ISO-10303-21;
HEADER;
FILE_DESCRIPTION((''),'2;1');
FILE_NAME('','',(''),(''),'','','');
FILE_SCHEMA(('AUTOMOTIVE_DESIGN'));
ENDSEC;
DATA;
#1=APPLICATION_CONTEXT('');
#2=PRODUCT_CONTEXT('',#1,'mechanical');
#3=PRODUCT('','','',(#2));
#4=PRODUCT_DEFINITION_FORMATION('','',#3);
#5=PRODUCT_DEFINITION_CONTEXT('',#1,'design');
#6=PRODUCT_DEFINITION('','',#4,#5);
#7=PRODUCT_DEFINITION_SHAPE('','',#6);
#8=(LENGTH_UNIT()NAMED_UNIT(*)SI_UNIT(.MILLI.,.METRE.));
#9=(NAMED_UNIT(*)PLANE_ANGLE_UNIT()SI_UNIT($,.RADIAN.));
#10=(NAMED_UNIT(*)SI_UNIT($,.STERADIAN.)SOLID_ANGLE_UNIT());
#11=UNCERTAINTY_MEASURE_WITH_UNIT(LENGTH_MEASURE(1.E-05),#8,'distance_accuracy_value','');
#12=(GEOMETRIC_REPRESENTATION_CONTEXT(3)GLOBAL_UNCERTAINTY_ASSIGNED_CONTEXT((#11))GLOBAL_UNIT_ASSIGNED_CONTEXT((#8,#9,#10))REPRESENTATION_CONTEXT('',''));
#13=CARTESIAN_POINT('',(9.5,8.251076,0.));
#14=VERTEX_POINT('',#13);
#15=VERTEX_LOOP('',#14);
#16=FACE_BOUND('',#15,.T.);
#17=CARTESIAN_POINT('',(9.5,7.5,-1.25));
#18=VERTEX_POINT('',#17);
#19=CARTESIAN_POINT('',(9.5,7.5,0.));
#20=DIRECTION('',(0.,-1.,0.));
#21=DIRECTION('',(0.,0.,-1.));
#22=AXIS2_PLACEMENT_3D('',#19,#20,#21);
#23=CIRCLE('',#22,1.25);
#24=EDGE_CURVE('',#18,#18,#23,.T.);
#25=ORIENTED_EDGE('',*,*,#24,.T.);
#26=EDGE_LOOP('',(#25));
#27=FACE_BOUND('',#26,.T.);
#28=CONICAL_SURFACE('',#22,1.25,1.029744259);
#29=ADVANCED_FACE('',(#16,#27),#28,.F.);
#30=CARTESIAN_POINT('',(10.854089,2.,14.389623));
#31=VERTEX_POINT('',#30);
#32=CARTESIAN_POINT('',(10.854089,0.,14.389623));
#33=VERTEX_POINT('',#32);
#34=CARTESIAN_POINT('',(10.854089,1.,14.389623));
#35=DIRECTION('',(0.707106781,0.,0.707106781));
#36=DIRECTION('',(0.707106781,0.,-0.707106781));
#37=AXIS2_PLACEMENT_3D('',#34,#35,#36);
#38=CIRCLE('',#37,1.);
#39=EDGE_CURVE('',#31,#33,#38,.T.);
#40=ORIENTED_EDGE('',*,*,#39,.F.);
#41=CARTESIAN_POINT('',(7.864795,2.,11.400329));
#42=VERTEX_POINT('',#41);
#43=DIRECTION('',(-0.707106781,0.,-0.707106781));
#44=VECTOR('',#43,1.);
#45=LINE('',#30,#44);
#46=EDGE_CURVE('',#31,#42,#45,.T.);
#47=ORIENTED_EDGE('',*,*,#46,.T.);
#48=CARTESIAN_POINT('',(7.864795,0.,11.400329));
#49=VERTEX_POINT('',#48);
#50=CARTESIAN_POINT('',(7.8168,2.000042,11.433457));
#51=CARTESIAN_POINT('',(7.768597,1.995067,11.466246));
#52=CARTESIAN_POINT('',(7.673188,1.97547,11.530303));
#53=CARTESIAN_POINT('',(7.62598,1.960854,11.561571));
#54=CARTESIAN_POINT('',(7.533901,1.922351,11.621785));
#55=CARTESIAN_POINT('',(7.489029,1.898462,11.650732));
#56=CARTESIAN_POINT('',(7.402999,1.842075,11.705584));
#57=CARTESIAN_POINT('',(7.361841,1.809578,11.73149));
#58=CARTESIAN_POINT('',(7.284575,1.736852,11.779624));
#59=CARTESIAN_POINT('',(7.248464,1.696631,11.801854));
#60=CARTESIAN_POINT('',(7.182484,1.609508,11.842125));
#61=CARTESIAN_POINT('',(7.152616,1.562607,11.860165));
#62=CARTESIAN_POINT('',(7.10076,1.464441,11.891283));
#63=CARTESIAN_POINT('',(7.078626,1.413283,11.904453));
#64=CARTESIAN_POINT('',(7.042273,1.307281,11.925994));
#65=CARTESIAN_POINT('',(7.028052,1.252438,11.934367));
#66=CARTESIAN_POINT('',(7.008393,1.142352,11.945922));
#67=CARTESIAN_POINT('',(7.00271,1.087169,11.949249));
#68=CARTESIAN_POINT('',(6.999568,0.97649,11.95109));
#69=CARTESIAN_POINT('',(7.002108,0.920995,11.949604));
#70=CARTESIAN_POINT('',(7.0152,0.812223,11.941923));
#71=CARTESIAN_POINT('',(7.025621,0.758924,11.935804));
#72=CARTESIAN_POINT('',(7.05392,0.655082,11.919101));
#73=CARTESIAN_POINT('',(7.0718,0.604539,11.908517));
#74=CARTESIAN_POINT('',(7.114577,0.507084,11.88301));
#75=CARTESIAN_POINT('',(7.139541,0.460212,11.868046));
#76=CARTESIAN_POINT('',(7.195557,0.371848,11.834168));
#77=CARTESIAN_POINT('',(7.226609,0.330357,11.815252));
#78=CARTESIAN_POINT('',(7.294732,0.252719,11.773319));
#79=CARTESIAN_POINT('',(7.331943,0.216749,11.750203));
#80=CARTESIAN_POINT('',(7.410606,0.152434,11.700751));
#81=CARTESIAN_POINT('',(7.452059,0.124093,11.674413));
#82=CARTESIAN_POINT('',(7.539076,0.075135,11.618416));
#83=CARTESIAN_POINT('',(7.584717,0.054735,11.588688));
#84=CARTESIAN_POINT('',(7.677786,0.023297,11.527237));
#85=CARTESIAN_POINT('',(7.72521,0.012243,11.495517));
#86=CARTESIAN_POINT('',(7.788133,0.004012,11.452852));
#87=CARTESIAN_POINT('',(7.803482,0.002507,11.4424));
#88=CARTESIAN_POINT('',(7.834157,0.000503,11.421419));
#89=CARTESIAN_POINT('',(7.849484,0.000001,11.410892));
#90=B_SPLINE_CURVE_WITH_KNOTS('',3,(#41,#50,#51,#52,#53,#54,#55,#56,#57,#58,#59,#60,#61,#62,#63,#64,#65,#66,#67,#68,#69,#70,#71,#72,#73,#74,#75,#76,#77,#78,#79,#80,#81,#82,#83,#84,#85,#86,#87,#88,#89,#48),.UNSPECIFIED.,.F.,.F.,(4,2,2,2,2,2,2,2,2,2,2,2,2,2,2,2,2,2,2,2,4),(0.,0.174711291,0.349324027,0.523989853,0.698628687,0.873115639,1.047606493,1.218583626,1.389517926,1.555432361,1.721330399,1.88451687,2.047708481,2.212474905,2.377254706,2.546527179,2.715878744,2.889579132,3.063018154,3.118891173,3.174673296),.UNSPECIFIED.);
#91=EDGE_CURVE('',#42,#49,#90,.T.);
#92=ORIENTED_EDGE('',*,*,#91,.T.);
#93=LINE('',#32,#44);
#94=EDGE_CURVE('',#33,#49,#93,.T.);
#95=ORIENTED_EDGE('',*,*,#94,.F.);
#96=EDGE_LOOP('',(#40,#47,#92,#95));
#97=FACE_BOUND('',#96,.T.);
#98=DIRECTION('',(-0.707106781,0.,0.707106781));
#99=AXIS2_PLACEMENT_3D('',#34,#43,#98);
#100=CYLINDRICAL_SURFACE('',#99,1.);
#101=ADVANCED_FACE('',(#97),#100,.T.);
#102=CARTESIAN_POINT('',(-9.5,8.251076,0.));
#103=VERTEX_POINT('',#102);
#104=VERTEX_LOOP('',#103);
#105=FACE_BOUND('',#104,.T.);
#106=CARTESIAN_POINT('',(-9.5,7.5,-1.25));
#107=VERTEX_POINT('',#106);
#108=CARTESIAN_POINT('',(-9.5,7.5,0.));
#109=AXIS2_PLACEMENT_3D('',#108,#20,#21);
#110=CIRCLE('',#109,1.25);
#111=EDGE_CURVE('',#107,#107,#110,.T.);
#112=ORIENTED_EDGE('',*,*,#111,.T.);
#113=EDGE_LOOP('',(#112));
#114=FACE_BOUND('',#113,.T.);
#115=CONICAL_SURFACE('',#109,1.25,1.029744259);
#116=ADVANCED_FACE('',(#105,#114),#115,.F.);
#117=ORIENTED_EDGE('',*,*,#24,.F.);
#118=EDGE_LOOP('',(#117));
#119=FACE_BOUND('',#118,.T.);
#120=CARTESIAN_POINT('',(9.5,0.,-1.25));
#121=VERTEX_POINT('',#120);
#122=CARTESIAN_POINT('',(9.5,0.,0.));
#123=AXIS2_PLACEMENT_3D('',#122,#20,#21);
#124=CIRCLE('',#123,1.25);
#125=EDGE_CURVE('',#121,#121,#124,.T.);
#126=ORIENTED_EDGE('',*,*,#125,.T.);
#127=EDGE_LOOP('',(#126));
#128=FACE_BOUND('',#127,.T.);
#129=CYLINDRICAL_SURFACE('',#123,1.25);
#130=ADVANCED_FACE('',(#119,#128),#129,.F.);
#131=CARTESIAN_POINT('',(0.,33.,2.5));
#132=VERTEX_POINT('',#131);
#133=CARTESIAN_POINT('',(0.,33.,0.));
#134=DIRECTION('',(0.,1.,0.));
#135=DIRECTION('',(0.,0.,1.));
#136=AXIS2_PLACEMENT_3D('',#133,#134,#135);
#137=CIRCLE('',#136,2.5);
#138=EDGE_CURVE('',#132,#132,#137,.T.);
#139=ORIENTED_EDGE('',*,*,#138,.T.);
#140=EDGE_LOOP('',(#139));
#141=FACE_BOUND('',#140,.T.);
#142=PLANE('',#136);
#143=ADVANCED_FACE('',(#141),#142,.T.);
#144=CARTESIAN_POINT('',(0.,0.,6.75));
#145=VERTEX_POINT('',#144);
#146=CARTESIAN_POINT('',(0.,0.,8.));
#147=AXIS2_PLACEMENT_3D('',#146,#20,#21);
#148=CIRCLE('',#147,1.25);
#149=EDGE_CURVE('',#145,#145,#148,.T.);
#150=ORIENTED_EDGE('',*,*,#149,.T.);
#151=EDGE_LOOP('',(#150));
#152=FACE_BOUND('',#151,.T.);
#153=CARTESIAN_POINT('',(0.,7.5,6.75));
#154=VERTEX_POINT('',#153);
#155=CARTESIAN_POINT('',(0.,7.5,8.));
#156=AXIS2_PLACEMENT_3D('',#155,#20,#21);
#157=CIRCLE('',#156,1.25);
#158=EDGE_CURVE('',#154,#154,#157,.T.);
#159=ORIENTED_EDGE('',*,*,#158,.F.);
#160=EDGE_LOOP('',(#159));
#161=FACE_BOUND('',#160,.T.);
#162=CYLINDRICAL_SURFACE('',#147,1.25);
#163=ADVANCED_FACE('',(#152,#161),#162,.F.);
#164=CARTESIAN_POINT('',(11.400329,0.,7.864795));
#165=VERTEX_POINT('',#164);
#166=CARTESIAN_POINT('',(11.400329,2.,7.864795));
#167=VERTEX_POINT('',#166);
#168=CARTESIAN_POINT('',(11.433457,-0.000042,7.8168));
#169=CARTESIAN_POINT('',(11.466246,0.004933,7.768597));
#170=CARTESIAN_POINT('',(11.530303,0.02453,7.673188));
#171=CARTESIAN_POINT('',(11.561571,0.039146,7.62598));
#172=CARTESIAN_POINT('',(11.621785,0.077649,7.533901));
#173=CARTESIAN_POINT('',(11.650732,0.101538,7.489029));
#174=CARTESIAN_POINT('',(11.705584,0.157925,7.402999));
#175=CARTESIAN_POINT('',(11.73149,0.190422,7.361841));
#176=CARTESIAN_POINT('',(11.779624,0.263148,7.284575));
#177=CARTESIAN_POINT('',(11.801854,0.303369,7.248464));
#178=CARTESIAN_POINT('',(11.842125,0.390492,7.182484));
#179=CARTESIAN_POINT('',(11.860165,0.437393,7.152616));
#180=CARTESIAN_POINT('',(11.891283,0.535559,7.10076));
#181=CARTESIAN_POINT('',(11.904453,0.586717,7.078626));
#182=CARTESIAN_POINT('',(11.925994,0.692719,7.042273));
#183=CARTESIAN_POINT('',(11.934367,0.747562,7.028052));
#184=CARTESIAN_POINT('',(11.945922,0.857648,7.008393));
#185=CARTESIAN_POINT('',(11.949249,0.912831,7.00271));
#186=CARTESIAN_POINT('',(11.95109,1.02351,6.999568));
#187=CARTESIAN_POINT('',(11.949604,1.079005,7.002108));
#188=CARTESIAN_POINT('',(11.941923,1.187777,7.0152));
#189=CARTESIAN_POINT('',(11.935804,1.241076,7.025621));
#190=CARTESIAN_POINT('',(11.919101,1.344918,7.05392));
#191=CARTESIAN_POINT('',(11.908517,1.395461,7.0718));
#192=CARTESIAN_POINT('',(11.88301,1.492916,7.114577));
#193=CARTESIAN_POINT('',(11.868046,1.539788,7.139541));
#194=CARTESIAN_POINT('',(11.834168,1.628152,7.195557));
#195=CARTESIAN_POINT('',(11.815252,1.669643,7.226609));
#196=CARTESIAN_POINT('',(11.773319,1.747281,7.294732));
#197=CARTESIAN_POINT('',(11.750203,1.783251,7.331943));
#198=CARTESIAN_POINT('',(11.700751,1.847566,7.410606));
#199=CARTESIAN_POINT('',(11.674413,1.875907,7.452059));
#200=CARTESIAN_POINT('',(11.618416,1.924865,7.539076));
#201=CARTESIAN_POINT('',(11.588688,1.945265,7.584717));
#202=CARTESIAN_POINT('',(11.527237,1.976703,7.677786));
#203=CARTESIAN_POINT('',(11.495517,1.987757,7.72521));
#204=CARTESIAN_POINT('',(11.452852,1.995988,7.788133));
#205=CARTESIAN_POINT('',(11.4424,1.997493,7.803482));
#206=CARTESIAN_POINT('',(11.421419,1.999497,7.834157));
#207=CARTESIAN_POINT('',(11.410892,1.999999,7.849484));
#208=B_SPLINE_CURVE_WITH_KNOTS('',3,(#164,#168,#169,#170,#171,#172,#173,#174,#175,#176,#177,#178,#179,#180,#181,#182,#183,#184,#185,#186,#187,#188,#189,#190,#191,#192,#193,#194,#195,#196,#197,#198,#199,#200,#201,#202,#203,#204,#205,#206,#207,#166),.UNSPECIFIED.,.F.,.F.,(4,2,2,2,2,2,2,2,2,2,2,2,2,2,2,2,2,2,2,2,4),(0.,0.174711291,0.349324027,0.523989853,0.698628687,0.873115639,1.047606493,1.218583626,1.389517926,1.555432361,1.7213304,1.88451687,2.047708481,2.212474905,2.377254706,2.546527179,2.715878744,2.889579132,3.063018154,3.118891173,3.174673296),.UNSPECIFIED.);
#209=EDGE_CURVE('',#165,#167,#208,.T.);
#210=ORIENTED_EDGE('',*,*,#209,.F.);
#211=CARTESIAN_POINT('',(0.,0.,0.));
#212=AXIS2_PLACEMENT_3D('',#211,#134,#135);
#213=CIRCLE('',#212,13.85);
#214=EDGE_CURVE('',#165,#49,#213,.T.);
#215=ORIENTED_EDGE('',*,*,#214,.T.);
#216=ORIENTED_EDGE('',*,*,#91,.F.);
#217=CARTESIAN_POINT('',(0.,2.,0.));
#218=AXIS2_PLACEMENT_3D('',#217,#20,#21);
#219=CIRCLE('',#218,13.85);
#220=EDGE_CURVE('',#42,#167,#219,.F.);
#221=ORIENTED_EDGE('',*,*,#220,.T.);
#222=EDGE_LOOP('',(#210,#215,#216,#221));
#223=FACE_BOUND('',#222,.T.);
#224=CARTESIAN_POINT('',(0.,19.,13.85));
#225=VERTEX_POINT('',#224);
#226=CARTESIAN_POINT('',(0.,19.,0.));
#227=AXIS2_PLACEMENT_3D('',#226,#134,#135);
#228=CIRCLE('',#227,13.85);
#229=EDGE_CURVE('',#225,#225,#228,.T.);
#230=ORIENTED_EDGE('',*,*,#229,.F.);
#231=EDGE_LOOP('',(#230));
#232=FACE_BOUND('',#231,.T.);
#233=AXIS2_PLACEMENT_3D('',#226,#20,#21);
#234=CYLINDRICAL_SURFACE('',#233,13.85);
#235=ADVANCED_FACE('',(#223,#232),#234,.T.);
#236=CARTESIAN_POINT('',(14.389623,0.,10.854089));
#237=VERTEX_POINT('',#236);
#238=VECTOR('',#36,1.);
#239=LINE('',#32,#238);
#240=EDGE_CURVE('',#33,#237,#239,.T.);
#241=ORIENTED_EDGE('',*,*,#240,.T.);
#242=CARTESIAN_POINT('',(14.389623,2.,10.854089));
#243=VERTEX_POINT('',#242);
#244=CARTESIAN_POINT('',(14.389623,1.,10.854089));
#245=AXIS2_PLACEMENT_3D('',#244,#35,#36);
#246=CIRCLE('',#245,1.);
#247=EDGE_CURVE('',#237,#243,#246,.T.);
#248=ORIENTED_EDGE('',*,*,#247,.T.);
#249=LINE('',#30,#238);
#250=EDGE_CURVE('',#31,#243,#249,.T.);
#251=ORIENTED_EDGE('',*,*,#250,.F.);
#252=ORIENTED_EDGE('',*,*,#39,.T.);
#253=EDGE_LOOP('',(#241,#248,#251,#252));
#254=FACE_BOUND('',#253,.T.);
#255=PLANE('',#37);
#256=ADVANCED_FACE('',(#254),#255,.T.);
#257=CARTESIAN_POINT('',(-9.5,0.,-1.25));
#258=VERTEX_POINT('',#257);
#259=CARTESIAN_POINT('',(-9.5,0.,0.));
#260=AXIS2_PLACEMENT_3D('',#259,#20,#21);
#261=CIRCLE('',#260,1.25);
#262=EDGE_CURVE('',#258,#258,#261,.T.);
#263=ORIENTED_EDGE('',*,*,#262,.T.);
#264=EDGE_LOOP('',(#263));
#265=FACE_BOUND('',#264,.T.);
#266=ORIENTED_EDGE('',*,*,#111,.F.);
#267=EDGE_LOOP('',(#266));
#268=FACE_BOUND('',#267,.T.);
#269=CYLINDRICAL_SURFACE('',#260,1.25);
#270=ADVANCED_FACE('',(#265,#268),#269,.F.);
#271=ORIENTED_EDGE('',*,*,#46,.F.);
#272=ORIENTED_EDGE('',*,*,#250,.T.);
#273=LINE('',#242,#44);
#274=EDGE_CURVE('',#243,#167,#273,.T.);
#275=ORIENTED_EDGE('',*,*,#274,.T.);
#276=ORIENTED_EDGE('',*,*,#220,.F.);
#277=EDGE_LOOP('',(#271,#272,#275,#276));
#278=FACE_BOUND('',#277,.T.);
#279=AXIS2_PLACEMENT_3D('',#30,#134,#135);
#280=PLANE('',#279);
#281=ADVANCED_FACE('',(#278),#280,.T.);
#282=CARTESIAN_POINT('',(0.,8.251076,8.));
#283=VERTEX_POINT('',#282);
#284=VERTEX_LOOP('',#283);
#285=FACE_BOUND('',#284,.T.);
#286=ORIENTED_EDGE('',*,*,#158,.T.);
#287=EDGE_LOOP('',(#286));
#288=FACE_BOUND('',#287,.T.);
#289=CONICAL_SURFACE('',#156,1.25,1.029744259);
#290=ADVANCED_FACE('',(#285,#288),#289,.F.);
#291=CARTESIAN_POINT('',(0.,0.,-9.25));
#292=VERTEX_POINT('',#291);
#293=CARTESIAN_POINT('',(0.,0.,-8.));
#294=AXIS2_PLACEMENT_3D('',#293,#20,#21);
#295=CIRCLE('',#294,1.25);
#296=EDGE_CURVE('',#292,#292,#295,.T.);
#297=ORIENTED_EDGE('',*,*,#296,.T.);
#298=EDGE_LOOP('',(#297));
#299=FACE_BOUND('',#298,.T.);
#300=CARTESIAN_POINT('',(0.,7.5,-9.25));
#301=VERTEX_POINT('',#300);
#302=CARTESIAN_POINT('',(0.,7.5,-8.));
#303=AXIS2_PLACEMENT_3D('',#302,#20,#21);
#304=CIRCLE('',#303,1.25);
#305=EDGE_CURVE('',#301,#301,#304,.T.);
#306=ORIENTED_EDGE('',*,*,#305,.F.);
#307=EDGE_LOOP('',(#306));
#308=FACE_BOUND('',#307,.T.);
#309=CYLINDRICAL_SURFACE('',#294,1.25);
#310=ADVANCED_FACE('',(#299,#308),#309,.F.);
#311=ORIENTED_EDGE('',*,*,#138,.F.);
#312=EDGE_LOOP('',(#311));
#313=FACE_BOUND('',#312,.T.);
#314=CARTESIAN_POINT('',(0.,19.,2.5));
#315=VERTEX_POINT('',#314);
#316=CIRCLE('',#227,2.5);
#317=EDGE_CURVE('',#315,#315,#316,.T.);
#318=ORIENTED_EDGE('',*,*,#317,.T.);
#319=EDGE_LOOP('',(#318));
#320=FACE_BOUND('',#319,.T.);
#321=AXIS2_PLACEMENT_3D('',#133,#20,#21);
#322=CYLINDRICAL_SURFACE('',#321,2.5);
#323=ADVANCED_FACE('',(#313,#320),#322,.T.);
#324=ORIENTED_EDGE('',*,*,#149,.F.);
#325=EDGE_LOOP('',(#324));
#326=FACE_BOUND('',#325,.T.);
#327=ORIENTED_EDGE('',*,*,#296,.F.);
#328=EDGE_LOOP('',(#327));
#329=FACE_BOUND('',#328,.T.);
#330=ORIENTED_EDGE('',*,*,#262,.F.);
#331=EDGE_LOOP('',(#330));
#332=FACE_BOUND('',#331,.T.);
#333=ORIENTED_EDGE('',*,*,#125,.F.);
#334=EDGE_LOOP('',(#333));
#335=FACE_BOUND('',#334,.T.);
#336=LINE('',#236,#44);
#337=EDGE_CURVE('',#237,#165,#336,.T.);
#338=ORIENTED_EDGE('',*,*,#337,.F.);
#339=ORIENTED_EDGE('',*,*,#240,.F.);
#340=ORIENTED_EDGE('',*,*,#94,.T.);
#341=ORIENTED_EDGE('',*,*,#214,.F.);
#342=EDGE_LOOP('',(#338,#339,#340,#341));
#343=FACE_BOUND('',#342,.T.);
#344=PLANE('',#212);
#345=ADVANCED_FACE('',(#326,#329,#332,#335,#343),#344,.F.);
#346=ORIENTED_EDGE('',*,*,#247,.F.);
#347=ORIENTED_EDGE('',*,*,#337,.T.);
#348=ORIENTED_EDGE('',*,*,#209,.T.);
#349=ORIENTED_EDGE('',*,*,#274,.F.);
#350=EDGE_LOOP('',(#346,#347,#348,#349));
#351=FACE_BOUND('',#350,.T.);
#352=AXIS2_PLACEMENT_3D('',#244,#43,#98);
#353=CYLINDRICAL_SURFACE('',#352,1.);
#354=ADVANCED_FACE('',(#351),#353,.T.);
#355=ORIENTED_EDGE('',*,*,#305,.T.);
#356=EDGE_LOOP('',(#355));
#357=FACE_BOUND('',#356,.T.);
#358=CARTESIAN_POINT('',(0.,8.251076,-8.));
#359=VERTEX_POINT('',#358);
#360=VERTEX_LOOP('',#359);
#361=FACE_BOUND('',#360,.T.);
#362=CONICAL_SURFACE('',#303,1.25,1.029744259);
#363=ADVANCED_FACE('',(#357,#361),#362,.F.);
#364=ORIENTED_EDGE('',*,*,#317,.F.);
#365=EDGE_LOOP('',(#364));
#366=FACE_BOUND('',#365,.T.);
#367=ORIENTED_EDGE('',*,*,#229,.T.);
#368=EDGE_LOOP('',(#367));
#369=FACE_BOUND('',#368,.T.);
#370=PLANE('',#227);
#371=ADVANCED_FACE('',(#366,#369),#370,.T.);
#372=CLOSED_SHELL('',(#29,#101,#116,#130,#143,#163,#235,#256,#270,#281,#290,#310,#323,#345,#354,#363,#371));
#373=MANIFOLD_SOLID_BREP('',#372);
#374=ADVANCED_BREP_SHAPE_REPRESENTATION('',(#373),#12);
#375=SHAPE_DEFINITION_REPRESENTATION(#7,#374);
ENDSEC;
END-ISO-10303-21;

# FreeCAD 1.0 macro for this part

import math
import FreeCAD as App
import Part
import Sketcher
from FreeCAD import Vector
Q = App.Units.Quantity

doc = App.newDocument("Part")
body = doc.addObject("PartDesign::Body", "Body")

sketch1 = body.newObject("Sketcher::SketchObject", "Sketch")
sketch1.AttachmentSupport = (doc.getObject("XZ_Plane"), [""])
sketch1.MapMode = "FlatFace"
sketch1.addGeometry(Part.Circle(Vector(0, 0, 0), Vector(0, 0, 1), 13.85), False)
sketch1.addConstraint(Sketcher.Constraint("Coincident", 0, 3, -1, 1))
sketch1.addConstraint(Sketcher.Constraint("Diameter", 0, Q("27.7 mm")))
pad1 = body.newObject("PartDesign::Pad", "Pad")
pad1.Profile = sketch1
pad1.Length = 19
pad1.Reversed = True

sketch2 = body.newObject("Sketcher::SketchObject", "Sketch001")
sketch2.AttachmentSupport = (doc.getObject("XZ_Plane"), [""])
sketch2.MapMode = "FlatFace"
sketch2.AttachmentOffset = App.Placement(Vector(0, 0, -19), App.Rotation())
sketch2.addGeometry(Part.Circle(Vector(0, 0, 0), Vector(0, 0, 1), 2.5), False)
sketch2.addConstraint(Sketcher.Constraint("Coincident", 0, 3, -1, 1))
sketch2.addConstraint(Sketcher.Constraint("Diameter", 0, Q("5 mm")))
pad2 = body.newObject("PartDesign::Pad", "Pad001")
pad2.Profile = sketch2
pad2.Length = 14
pad2.Reversed = True

sketch3 = body.newObject("Sketcher::SketchObject", "Sketch002")
sketch3.AttachmentSupport = (doc.getObject("XZ_Plane"), [""])
sketch3.MapMode = "FlatFace"
sketch3.addGeometry(Part.Circle(Vector(0, 8, 0), Vector(0, 0, 1), 1.25), False)
sketch3.addGeometry(Part.Circle(Vector(-9.5, 0, 0), Vector(0, 0, 1), 1.25), False)
sketch3.addGeometry(Part.Circle(Vector(0, -8, 0), Vector(0, 0, 1), 1.25), False)
sketch3.addGeometry(Part.Circle(Vector(9.5, 0, 0), Vector(0, 0, 1), 1.25), False)
sketch3.addConstraint(Sketcher.Constraint("Equal", 0, 1))
sketch3.addConstraint(Sketcher.Constraint("Equal", 1, 2))
sketch3.addConstraint(Sketcher.Constraint("Equal", 2, 3))
sketch3.addConstraint(Sketcher.Constraint("Symmetric", 0, 3, 2, 3, -1, 1))
sketch3.addConstraint(Sketcher.Constraint("Symmetric", 1, 3, 3, 3, -1, 1))
sketch3.addConstraint(Sketcher.Constraint("PointOnObject", 0, 3, -2))
sketch3.addConstraint(Sketcher.Constraint("PointOnObject", 1, 3, -1))
sketch3.addConstraint(Sketcher.Constraint("Diameter", 0, Q("2.5 mm")))
sketch3.addConstraint(Sketcher.Constraint("DistanceY", -1, 1, 0, 3, Q("8 mm")))
sketch3.addConstraint(Sketcher.Constraint("DistanceX", 1, 3, 3, 3, Q("19 mm")))
doc.recompute()
hole = body.newObject("PartDesign::Hole", "Hole")
hole.Profile = sketch3
hole.ThreadType = "None"
hole.Diameter = 2.5
hole.DepthType = "Dimension"
hole.Depth = 7.5
hole.DrillPoint = "Angled"
hole.DrillPointAngle = 118

sketch4 = body.newObject("Sketcher::SketchObject", "Sketch003")
sketch4.Placement = App.Placement(Vector(9.475561, 0, 9.475561), App.Rotation(Vector(0.707106781, 0, -0.707106781), Vector(0, 0.999999999, 0), Vector(0.707106781, 0, 0.707106781), "ZXY"))
sketch4.addGeometry(Part.LineSegment(Vector(2.5, 2, 0), Vector(-2.5, 2, 0)), False)
sketch4.addGeometry(Part.ArcOfCircle(Part.Circle(Vector(-2.5, 1, 0), Vector(0, 0, 1), 1), math.radians(90), math.radians(270)), False)
sketch4.addGeometry(Part.LineSegment(Vector(-2.5, 0, 0), Vector(2.5, 0, 0)), False)
sketch4.addGeometry(Part.ArcOfCircle(Part.Circle(Vector(2.5, 1, 0), Vector(0, 0, 1), 1), math.radians(-90), math.radians(90)), False)
sketch4.addConstraint(Sketcher.Constraint("Tangent", 0, 2, 1, 1))
sketch4.addConstraint(Sketcher.Constraint("Tangent", 1, 2, 2, 1))
sketch4.addConstraint(Sketcher.Constraint("Tangent", 2, 2, 3, 1))
sketch4.addConstraint(Sketcher.Constraint("Tangent", 3, 2, 0, 1))
sketch4.addConstraint(Sketcher.Constraint("Horizontal", 0))
sketch4.addConstraint(Sketcher.Constraint("Horizontal", 2))
sketch4.addConstraint(Sketcher.Constraint("Symmetric", 1, 2, 2, 2, -1, 1))
sketch4.addConstraint(Sketcher.Constraint("Radius", 1, Q("1 mm")))
sketch4.addConstraint(Sketcher.Constraint("DistanceX", 0, 2, 0, 1, Q("5 mm")))
pad3 = body.newObject("PartDesign::Pad", "Pad002")
pad3.Profile = sketch4
pad3.Length = 4.449533

doc.recompute()
